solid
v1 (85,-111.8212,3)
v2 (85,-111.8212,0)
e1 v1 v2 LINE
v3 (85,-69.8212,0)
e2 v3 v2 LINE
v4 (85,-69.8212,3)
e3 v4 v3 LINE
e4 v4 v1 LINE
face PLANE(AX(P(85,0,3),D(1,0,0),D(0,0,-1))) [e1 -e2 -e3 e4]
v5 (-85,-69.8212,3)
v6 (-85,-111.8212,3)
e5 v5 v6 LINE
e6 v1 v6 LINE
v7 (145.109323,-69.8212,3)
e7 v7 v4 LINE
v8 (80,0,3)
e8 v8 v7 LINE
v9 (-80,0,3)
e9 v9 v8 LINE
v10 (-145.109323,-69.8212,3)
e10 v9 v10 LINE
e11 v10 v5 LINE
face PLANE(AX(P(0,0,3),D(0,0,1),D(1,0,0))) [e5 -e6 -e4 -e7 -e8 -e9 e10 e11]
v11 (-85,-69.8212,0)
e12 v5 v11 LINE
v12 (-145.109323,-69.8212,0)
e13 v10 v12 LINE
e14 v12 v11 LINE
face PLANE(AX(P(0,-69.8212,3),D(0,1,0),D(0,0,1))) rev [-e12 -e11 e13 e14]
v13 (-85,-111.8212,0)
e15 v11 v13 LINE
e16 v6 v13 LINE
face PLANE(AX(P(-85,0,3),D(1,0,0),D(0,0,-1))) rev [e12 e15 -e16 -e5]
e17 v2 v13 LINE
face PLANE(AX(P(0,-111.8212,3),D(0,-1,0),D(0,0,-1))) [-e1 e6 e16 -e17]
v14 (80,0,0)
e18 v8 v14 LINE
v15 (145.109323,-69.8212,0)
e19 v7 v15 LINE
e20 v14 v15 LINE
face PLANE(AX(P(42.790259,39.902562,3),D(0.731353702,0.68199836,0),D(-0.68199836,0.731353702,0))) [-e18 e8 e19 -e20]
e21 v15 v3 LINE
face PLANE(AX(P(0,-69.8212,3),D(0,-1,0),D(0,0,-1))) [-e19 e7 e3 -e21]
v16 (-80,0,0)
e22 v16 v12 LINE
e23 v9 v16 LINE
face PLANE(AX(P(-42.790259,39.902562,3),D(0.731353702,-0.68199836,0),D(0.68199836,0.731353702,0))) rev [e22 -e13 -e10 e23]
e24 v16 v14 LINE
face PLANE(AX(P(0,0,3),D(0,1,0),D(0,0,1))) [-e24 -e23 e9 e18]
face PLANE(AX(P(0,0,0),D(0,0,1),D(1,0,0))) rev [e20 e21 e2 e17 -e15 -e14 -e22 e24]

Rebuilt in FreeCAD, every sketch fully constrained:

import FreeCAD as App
import Part
import Sketcher
from FreeCAD import Vector
Q = App.Units.Quantity


def add_polygon(sketch, points):
    """Adds a closed chain of lines whose ends are joined by coincident constraints."""
    first, n = sketch.GeometryCount, len(points)
    for a, b in zip(points, points[1:] + points[:1]):
        sketch.addGeometry(Part.LineSegment(App.Vector(*a, 0), App.Vector(*b, 0)), False)
    for i in range(n):
        sketch.addConstraint(Sketcher.Constraint("Coincident", first + i, 2, first + (i + 1) % n, 1))

doc = App.newDocument("Part")
params = doc.addObject("Spreadsheet::Sheet", "Params")
for row, (alias, value) in enumerate([
    ("sketch1_width", "170 mm"),
    ("sketch1_width2", "160 mm"),
    ("sketch1_height", "42 mm"),
    ("pad1_length", "3 mm"),
], start=1):
    params.set(f"A{row}", alias)
    params.set(f"B{row}", "=" + value)
    params.setAlias(f"B{row}", alias)

body = doc.addObject("PartDesign::Body", "Body")

# Sketch on XY plane
sketch1 = body.newObject("Sketcher::SketchObject", "Sketch")
sketch1.AttachmentSupport = (doc.getObject("XY_Plane"), [""])
sketch1.MapMode = "FlatFace"
add_polygon(sketch1, [(-80, 0), (-145.109323, -69.8212), (-85, -69.8212), (-85, -111.8212), (85, -111.8212), (85, -69.8212), (145.109323, -69.8212), (80, 0)])  # lines 0-7
sketch1.addConstraint([
    Sketcher.Constraint("Horizontal", 1),
    Sketcher.Constraint("Vertical", 2),
    Sketcher.Constraint("Horizontal", 3),
    Sketcher.Constraint("Vertical", 4),
    Sketcher.Constraint("Horizontal", 5),
    Sketcher.Constraint("Horizontal", 7),
    Sketcher.Constraint("Symmetric", 6, 2, 7, 2, -1, 1),
    Sketcher.Constraint("Symmetric", 1, 2, 4, 2, -2),
    Sketcher.Constraint("Equal", 1, 5),
    Sketcher.Constraint("DistanceX", 3, 1, 3, 2, Q("170 mm")),
    Sketcher.Constraint("DistanceX", 7, 2, 7, 1, Q("160 mm")),
    Sketcher.Constraint("DistanceY", 2, 2, 2, 1, Q("42 mm")),
    Sketcher.Constraint("Angle", 0, Q("-133 deg")),
    Sketcher.Constraint("DistanceY", 0, 2, -1, 1, Q("69.8212 mm")),
])
sketch1.setExpression("Constraints[17]", "Params.sketch1_width")
sketch1.setExpression("Constraints[18]", "Params.sketch1_width2")
sketch1.setExpression("Constraints[19]", "Params.sketch1_height")
pad1 = body.newObject("PartDesign::Pad", "Pad")
pad1.Profile = sketch1
pad1.setExpression("Length", "Params.pad1_length")

doc.recompute()
